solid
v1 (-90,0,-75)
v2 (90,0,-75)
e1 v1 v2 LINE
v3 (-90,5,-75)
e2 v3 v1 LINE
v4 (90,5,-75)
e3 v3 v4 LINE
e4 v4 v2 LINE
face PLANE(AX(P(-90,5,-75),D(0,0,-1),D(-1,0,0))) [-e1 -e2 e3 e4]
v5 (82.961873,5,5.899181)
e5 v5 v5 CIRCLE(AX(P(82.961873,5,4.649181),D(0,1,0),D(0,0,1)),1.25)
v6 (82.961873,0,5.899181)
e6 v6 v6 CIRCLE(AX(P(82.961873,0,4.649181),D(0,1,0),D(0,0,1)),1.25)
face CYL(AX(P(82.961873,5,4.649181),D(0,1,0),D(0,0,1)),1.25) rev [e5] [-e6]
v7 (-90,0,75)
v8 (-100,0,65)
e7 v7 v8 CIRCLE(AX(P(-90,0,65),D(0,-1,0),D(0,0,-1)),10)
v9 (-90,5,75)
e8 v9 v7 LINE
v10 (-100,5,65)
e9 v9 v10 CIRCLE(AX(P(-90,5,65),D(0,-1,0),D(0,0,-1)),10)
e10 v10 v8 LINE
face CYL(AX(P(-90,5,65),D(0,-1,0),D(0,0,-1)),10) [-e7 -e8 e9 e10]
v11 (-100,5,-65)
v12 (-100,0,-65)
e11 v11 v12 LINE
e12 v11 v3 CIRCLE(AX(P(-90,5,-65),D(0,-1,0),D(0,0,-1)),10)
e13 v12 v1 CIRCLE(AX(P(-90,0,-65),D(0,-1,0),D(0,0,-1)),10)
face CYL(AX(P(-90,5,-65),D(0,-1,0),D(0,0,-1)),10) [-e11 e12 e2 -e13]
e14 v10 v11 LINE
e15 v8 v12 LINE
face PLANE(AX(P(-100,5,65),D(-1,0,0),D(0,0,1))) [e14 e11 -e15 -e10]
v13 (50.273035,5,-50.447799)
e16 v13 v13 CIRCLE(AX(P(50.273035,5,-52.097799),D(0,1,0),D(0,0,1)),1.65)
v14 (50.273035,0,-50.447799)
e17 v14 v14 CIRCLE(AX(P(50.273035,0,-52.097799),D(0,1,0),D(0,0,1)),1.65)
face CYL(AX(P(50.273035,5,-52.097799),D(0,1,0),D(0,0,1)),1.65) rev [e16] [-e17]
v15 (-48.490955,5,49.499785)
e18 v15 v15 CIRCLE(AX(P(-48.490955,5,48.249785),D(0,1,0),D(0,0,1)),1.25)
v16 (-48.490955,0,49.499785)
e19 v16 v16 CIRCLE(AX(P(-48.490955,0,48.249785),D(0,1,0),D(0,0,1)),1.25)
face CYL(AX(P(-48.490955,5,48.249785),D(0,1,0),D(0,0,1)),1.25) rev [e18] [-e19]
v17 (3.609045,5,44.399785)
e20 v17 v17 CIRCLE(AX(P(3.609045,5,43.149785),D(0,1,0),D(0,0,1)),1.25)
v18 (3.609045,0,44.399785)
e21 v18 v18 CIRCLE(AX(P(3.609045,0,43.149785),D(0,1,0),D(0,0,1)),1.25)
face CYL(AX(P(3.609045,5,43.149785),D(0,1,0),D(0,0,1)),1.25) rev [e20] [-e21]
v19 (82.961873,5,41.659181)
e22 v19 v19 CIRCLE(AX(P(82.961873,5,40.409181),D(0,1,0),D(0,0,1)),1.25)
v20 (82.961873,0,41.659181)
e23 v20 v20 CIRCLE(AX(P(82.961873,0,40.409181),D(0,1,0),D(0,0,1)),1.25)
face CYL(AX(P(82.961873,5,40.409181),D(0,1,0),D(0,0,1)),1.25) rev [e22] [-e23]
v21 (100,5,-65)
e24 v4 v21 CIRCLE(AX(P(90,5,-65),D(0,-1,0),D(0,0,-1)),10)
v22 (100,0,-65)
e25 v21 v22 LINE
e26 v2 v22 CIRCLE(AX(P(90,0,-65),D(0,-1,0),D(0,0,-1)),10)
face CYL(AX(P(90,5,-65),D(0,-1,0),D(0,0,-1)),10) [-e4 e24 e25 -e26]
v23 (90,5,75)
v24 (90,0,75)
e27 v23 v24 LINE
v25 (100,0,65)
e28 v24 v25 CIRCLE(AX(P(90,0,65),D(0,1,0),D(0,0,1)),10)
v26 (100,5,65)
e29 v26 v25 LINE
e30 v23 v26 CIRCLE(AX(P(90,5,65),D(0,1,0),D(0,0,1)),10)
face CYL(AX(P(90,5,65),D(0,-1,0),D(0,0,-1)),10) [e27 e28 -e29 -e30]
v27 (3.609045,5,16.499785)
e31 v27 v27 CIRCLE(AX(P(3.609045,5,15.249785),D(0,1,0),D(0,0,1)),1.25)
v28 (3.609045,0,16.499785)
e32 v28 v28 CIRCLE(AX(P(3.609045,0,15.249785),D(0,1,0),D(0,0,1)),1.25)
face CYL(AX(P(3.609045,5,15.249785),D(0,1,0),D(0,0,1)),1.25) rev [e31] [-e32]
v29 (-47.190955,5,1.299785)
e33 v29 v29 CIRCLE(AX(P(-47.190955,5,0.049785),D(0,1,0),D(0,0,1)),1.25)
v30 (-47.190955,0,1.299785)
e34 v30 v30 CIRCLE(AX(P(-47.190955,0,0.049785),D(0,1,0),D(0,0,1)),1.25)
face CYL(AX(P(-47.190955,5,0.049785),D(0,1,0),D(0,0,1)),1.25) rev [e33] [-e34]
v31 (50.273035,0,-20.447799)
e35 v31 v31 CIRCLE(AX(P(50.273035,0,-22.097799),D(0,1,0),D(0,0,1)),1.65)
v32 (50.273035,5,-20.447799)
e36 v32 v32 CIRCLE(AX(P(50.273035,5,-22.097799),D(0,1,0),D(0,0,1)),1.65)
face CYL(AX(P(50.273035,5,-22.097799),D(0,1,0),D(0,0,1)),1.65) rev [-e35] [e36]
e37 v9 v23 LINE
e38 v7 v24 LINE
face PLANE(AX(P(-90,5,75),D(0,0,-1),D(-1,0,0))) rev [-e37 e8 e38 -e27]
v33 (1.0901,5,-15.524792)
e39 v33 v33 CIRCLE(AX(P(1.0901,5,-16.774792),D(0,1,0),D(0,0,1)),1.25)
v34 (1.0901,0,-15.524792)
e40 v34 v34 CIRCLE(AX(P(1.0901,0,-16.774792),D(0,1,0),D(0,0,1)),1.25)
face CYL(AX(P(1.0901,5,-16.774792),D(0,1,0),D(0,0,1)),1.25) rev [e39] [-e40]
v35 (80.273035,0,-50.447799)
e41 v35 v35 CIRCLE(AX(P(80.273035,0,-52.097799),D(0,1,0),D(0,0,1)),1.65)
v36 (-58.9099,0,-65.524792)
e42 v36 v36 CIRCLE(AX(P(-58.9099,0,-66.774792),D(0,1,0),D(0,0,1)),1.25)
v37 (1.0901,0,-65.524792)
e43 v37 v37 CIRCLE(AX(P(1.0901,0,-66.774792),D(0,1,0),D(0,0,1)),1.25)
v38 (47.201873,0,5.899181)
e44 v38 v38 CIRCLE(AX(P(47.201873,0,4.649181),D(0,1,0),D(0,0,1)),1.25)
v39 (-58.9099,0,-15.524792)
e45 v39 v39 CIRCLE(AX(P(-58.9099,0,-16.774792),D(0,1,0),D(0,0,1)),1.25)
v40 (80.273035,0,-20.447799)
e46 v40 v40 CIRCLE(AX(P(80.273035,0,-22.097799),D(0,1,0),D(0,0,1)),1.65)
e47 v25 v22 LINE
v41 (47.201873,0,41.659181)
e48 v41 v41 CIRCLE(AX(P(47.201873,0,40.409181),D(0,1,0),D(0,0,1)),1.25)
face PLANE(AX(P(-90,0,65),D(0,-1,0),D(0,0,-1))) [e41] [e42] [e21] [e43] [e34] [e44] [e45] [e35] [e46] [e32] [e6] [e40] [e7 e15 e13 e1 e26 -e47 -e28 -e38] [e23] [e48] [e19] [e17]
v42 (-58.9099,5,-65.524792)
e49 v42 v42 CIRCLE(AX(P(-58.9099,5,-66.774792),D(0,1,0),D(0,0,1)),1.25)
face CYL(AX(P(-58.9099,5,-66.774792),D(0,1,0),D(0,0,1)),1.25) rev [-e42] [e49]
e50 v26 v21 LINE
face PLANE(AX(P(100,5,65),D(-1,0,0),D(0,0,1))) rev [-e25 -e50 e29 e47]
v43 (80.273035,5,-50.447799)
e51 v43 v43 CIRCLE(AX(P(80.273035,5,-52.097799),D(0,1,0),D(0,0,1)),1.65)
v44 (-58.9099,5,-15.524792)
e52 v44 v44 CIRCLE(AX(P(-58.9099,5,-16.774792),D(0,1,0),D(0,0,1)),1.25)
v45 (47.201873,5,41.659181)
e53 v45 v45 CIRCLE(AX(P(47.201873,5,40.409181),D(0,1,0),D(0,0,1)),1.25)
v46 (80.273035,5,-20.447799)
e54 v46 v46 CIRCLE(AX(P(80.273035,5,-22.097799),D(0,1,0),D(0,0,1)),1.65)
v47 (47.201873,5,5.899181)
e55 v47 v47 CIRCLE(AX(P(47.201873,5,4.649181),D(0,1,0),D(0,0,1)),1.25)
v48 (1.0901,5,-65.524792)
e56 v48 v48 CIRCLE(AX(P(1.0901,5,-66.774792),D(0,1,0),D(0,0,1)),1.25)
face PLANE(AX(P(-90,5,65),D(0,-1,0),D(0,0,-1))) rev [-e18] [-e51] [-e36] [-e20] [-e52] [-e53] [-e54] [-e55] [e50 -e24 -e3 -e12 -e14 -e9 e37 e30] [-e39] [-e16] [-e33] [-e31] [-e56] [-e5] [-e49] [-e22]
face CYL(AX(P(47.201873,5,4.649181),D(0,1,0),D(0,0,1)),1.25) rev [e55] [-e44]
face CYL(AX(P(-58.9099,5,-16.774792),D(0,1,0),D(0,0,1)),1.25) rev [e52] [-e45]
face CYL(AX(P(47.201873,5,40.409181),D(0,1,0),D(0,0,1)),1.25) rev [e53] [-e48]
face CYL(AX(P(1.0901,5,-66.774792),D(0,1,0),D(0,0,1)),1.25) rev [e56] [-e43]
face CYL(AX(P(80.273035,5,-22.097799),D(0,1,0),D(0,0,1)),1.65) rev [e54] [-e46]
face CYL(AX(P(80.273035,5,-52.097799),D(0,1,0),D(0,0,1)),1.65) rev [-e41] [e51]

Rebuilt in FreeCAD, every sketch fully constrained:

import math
import FreeCAD as App
import Part
import Sketcher
Q = App.Units.Quantity

doc = App.newDocument("Part")
body = doc.addObject("PartDesign::Body", "Body")

sketch1 = body.newObject("Sketcher::SketchObject", "Sketch")
sketch1.AttachmentSupport = (doc.getObject("XZ_Plane"), [""])
sketch1.MapMode = "FlatFace"
sketch1.addGeometry([
    Part.LineSegment(App.Vector(-90, 75, 0), App.Vector(90, 75, 0)),
    Part.ArcOfCircle(Part.Circle(App.Vector(90, 65, 0), App.Vector(0, 0, 1), 10), math.radians(0), math.radians(90)),
    Part.LineSegment(App.Vector(100, 65, 0), App.Vector(100, -65, 0)),
    Part.ArcOfCircle(Part.Circle(App.Vector(90, -65, 0), App.Vector(0, 0, 1), 10), math.radians(-90), math.radians(0)),
    Part.LineSegment(App.Vector(90, -75, 0), App.Vector(-90, -75, 0)),
    Part.ArcOfCircle(Part.Circle(App.Vector(-90, -65, 0), App.Vector(0, 0, 1), 10), math.radians(180), math.radians(270)),
    Part.LineSegment(App.Vector(-100, -65, 0), App.Vector(-100, 65, 0)),
    Part.ArcOfCircle(Part.Circle(App.Vector(-90, 65, 0), App.Vector(0, 0, 1), 10), math.radians(90), math.radians(180)),
], False)
sketch1.addConstraint([
    Sketcher.Constraint("Tangent", 0, 2, 1, 2),
    Sketcher.Constraint("Tangent", 1, 1, 2, 1),
    Sketcher.Constraint("Tangent", 2, 2, 3, 2),
    Sketcher.Constraint("Tangent", 3, 1, 4, 1),
    Sketcher.Constraint("Tangent", 4, 2, 5, 2),
    Sketcher.Constraint("Tangent", 5, 1, 6, 1),
    Sketcher.Constraint("Tangent", 6, 2, 7, 2),
    Sketcher.Constraint("Tangent", 7, 1, 0, 1),
    Sketcher.Constraint("Horizontal", 0),
    Sketcher.Constraint("Vertical", 2),
    Sketcher.Constraint("Horizontal", 4),
    Sketcher.Constraint("Vertical", 6),
    Sketcher.Constraint("Equal", 1, 3),
    Sketcher.Constraint("Equal", 3, 5),
    Sketcher.Constraint("Equal", 5, 7),
    Sketcher.Constraint("Symmetric", 1, 3, 5, 3, -1, 1),
    Sketcher.Constraint("Radius", 1, Q("10 mm")),
    Sketcher.Constraint("DistanceX", 0, 1, 0, 2, Q("180 mm")),
    Sketcher.Constraint("DistanceY", 2, 2, 2, 1, Q("130 mm")),
])
pad1 = body.newObject("PartDesign::Pad", "Pad")
pad1.Profile = sketch1
pad1.Length = 5
pad1.Reversed = True

sketch2 = body.newObject("Sketcher::SketchObject", "Sketch001")
sketch2.AttachmentSupport = (doc.getObject("XZ_Plane"), [""])
sketch2.MapMode = "FlatFace"
sketch2.AttachmentOffset = App.Placement(App.Vector(0, 0, -5), App.Rotation())
sketch2.addGeometry([
    Part.Circle(App.Vector(3.6, 15.2, 0), App.Vector(0, 0, 1), 1.2),
    Part.Circle(App.Vector(3.6, 43.1, 0), App.Vector(0, 0, 1), 1.2),
    Part.Circle(App.Vector(-47.2, 0, 0), App.Vector(0, 0, 1), 1.2),
    Part.Circle(App.Vector(-48.5, 48.2, 0), App.Vector(0, 0, 1), 1.2),
], False)
sketch2.addConstraint([
    Sketcher.Constraint("Equal", 0, 1),
    Sketcher.Constraint("Equal", 1, 2),
    Sketcher.Constraint("Equal", 2, 3),
    Sketcher.Constraint("Vertical", 0, 3, 1, 3),
    Sketcher.Constraint("Diameter", 0, Q("2.5 mm")),
    Sketcher.Constraint("DistanceY", 0, 3, 3, 3, Q("33 mm")),
    Sketcher.Constraint("DistanceY", 0, 3, 1, 3, Q("27.9 mm")),
    Sketcher.Constraint("DistanceX", 2, 3, 0, 3, Q("50.8 mm")),
    Sketcher.Constraint("DistanceY", 2, 3, 0, 3, Q("15.2 mm")),
    Sketcher.Constraint("DistanceX", 3, 3, 2, 3, Q("1.3 mm")),
    Sketcher.Constraint("DistanceX", -1, 1, 0, 3, Q("3.609045 mm")),
    Sketcher.Constraint("DistanceY", -1, 1, 0, 3, Q("15.249785 mm")),
])
doc.recompute()
hole = body.newObject("PartDesign::Hole", "Hole")
hole.Profile = sketch2
hole.ThreadType = "None"
hole.Diameter = 2.5
hole.DepthType = "ThroughAll"
hole.Reversed = True

sketch3 = body.newObject("Sketcher::SketchObject", "Sketch002")
sketch3.AttachmentSupport = (doc.getObject("XZ_Plane"), [""])
sketch3.MapMode = "FlatFace"
sketch3.AttachmentOffset = App.Placement(App.Vector(0, 0, -5), App.Rotation())
sketch3.addGeometry([
    Part.Circle(App.Vector(47.2, 40.4, 0), App.Vector(0, 0, 1), 1.2),
    Part.Circle(App.Vector(83, 40.4, 0), App.Vector(0, 0, 1), 1.2),
    Part.Circle(App.Vector(83, 4.6, 0), App.Vector(0, 0, 1), 1.2),
    Part.Circle(App.Vector(47.2, 4.6, 0), App.Vector(0, 0, 1), 1.2),
], False)
sketch3.addConstraint([
    Sketcher.Constraint("Equal", 0, 1),
    Sketcher.Constraint("Equal", 1, 2),
    Sketcher.Constraint("Equal", 2, 3),
    Sketcher.Constraint("Horizontal", 0, 3, 1, 3),
    Sketcher.Constraint("Horizontal", 2, 3, 3, 3),
    Sketcher.Constraint("Vertical", 1, 3, 2, 3),
    Sketcher.Constraint("Vertical", 0, 3, 3, 3),
    Sketcher.Constraint("Diameter", 0, Q("2.5 mm")),
    Sketcher.Constraint("DistanceX", 0, 3, 1, 3, Q("35.76 mm")),
    Sketcher.Constraint("DistanceY", 2, 3, 1, 3, Q("35.76 mm")),
    Sketcher.Constraint("DistanceY", -1, 1, 0, 3, Q("40.409181 mm")),
    Sketcher.Constraint("DistanceX", -1, 1, 0, 3, Q("47.201873 mm")),
])
doc.recompute()
hole2 = body.newObject("PartDesign::Hole", "Hole001")
hole2.Profile = sketch3
hole2.ThreadType = "None"
hole2.Diameter = 2.5
hole2.DepthType = "ThroughAll"
hole2.Reversed = True

sketch4 = body.newObject("Sketcher::SketchObject", "Sketch003")
sketch4.AttachmentSupport = (doc.getObject("XZ_Plane"), [""])
sketch4.MapMode = "FlatFace"
sketch4.AttachmentOffset = App.Placement(App.Vector(0, 0, -5), App.Rotation())
sketch4.addGeometry([
    Part.Circle(App.Vector(50.3, -22.1, 0), App.Vector(0, 0, 1), 1.6),
    Part.Circle(App.Vector(80.3, -22.1, 0), App.Vector(0, 0, 1), 1.6),
    Part.Circle(App.Vector(80.3, -52.1, 0), App.Vector(0, 0, 1), 1.6),
    Part.Circle(App.Vector(50.3, -52.1, 0), App.Vector(0, 0, 1), 1.6),
], False)
sketch4.addConstraint([
    Sketcher.Constraint("Equal", 0, 1),
    Sketcher.Constraint("Equal", 1, 2),
    Sketcher.Constraint("Equal", 2, 3),
    Sketcher.Constraint("Horizontal", 0, 3, 1, 3),
    Sketcher.Constraint("Horizontal", 2, 3, 3, 3),
    Sketcher.Constraint("Vertical", 1, 3, 2, 3),
    Sketcher.Constraint("Vertical", 0, 3, 3, 3),
    Sketcher.Constraint("Diameter", 0, Q("3.3 mm")),
    Sketcher.Constraint("DistanceX", 0, 3, 1, 3, Q("30 mm")),
    Sketcher.Constraint("DistanceY", 2, 3, 1, 3, Q("30 mm")),
    Sketcher.Constraint("DistanceY", 0, 3, -1, 1, Q("22.097799 mm")),
    Sketcher.Constraint("DistanceX", -1, 1, 0, 3, Q("50.273035 mm")),
])
doc.recompute()
hole3 = body.newObject("PartDesign::Hole", "Hole002")
hole3.Profile = sketch4
hole3.ThreadType = "None"
hole3.Diameter = 3.3
hole3.DepthType = "ThroughAll"
hole3.Reversed = True

sketch5 = body.newObject("Sketcher::SketchObject", "Sketch004")
sketch5.AttachmentSupport = (doc.getObject("XZ_Plane"), [""])
sketch5.MapMode = "FlatFace"
sketch5.AttachmentOffset = App.Placement(App.Vector(0, 0, -5), App.Rotation())
sketch5.addGeometry([
    Part.Circle(App.Vector(-58.9, -16.8, 0), App.Vector(0, 0, 1), 1.2),
    Part.Circle(App.Vector(1.1, -16.8, 0), App.Vector(0, 0, 1), 1.2),
    Part.Circle(App.Vector(1.1, -66.8, 0), App.Vector(0, 0, 1), 1.2),
    Part.Circle(App.Vector(-58.9, -66.8, 0), App.Vector(0, 0, 1), 1.2),
], False)
sketch5.addConstraint([
    Sketcher.Constraint("Equal", 0, 1),
    Sketcher.Constraint("Equal", 1, 2),
    Sketcher.Constraint("Equal", 2, 3),
    Sketcher.Constraint("Horizontal", 0, 3, 1, 3),
    Sketcher.Constraint("Horizontal", 2, 3, 3, 3),
    Sketcher.Constraint("Vertical", 1, 3, 2, 3),
    Sketcher.Constraint("Vertical", 0, 3, 3, 3),
    Sketcher.Constraint("Diameter", 0, Q("2.5 mm")),
    Sketcher.Constraint("DistanceX", 0, 3, 1, 3, Q("60 mm")),
    Sketcher.Constraint("DistanceY", 2, 3, 1, 3, Q("50 mm")),
    Sketcher.Constraint("DistanceX", 0, 3, -1, 1, Q("58.9099 mm")),
    Sketcher.Constraint("DistanceY", 0, 3, -1, 1, Q("16.774792 mm")),
])
doc.recompute()
hole4 = body.newObject("PartDesign::Hole", "Hole003")
hole4.Profile = sketch5
hole4.ThreadType = "None"
hole4.Diameter = 2.5
hole4.DepthType = "ThroughAll"
hole4.Reversed = True

doc.recompute()
